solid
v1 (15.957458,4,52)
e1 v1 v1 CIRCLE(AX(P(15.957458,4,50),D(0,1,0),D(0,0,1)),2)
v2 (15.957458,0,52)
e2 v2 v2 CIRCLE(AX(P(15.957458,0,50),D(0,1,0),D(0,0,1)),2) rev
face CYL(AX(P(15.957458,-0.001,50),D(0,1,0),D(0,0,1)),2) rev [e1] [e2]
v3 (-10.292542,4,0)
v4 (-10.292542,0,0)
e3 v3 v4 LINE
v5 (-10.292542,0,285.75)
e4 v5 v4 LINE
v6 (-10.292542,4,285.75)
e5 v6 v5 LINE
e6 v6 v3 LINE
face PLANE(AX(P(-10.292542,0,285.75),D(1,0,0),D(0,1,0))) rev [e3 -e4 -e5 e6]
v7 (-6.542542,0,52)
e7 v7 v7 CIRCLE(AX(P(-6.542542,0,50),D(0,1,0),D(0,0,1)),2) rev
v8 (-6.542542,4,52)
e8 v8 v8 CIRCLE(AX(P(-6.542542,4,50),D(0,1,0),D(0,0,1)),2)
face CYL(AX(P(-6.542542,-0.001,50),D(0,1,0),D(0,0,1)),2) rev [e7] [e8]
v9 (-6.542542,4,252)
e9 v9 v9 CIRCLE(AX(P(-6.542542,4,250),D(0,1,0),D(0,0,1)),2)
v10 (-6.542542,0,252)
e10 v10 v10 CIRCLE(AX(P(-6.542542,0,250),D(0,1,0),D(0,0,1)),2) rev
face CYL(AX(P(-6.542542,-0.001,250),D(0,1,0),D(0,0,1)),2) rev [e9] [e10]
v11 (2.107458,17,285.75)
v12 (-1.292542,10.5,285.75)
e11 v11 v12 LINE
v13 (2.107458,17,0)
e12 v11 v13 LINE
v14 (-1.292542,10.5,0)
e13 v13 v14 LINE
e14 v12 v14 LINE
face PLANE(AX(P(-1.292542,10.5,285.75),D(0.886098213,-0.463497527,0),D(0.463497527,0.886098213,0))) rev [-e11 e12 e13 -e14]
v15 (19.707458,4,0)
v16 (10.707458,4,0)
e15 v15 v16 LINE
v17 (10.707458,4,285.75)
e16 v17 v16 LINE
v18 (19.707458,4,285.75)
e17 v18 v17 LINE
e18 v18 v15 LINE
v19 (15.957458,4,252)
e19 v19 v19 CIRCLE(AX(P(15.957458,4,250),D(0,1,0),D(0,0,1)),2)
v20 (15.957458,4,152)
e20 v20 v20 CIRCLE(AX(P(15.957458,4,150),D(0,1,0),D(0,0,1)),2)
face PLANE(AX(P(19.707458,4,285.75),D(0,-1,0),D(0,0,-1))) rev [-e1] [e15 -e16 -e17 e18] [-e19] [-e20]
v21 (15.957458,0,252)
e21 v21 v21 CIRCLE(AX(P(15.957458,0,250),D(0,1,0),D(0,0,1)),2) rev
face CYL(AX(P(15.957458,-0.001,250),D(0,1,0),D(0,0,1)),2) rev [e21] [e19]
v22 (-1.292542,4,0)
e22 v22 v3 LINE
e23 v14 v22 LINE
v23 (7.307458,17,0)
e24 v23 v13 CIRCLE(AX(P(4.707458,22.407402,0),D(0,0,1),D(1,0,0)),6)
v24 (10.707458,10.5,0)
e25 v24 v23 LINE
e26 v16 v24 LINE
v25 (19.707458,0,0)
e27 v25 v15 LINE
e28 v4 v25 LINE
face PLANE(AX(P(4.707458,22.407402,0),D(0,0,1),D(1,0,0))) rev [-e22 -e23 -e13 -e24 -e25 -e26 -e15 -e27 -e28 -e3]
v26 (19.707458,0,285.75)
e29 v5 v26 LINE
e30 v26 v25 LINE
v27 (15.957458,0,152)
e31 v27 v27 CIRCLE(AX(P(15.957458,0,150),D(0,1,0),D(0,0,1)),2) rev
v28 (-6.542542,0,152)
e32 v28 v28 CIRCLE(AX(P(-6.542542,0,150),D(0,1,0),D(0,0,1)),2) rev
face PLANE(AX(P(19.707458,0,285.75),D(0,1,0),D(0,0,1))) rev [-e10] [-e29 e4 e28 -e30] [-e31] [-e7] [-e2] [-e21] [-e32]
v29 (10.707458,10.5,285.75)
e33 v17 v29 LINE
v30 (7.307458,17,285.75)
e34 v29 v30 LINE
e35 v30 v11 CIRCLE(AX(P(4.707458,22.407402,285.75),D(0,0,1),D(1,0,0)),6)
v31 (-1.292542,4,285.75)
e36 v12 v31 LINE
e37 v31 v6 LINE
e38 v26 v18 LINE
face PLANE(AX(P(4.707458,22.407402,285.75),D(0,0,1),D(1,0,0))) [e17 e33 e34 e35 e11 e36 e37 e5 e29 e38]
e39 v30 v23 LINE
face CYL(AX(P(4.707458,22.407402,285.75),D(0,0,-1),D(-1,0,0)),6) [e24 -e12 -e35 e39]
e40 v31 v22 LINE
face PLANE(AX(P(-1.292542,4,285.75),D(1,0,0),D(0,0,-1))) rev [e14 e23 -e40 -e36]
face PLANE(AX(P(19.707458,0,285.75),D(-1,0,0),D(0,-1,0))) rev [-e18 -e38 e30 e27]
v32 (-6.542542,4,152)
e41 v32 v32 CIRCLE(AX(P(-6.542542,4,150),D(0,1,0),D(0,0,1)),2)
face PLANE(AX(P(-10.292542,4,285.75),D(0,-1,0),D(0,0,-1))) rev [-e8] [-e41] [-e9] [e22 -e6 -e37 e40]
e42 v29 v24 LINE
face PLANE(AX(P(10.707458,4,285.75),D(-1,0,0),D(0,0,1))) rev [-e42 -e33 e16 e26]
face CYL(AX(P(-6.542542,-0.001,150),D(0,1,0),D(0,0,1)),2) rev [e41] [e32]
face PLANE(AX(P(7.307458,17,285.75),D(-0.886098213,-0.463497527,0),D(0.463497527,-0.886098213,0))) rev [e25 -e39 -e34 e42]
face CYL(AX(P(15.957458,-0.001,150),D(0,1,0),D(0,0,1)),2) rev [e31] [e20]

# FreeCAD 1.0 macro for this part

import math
import FreeCAD as App
import Part
import Sketcher

V = App.Vector
Q = App.Units.Quantity

doc = App.newDocument("Part")
params = doc.addObject("Spreadsheet::Sheet", "Params")
for row, (alias, value) in enumerate([
    ("sketch1_radius", "6 mm"),
    ("sketch1_width", "30 mm"),
    ("sketch1_width2", "9 mm"),
    ("sketch1_height", "4 mm"),
    ("sketch1_height2", "6.5 mm"),
    ("pad1_length", "285.75 mm"),
    ("sketch2_diameter", "4 mm"),
    ("sketch3_diameter", "4 mm"),
    ("sketch4_diameter", "4 mm"),
    ("sketch5_diameter", "4 mm"),
    ("sketch6_diameter", "4 mm"),
    ("sketch7_diameter", "4 mm"),
], start=1):
    params.set(f"A{row}", alias)
    params.set(f"B{row}", "=" + value)
    params.setAlias(f"B{row}", alias)

body = doc.addObject("PartDesign::Body", "Body")

sketch1 = body.newObject("Sketcher::SketchObject", "Sketch")
sketch1.AttachmentSupport = (doc.getObject("XY_Plane"), [""])
sketch1.MapMode = "FlatFace"
sketch1.addGeometry([
    Part.LineSegment(V(-10.3, 0, 0), V(19.7, 0, 0)),
    Part.LineSegment(V(19.7, 0, 0), V(19.7, 4, 0)),
    Part.LineSegment(V(19.7, 4, 0), V(10.7, 4, 0)),
    Part.LineSegment(V(10.7, 4, 0), V(10.7, 10.5, 0)),
    Part.LineSegment(V(10.7, 10.5, 0), V(7.3, 17, 0)),
    Part.ArcOfCircle(Part.Circle(V(4.7, 22.4, 0), V(0, 0, 1), 6), math.radians(-64), math.radians(244)),
    Part.LineSegment(V(2.1, 17, 0), V(-1.3, 10.5, 0)),
    Part.LineSegment(V(-1.3, 10.5, 0), V(-1.3, 4, 0)),
    Part.LineSegment(V(-1.3, 4, 0), V(-10.3, 4, 0)),
    Part.LineSegment(V(-10.3, 4, 0), V(-10.3, 0, 0)),
], False)
sketch1.addConstraint([
    Sketcher.Constraint("Coincident", 0, 2, 1, 1),
    Sketcher.Constraint("Coincident", 1, 2, 2, 1),
    Sketcher.Constraint("Coincident", 2, 2, 3, 1),
    Sketcher.Constraint("Coincident", 3, 2, 4, 1),
    Sketcher.Constraint("Coincident", 4, 2, 5, 1),
    Sketcher.Constraint("Coincident", 5, 2, 6, 1),
    Sketcher.Constraint("Coincident", 6, 2, 7, 1),
    Sketcher.Constraint("Coincident", 7, 2, 8, 1),
    Sketcher.Constraint("Coincident", 8, 2, 9, 1),
    Sketcher.Constraint("Coincident", 9, 2, 0, 1),
    Sketcher.Constraint("Horizontal", 0),
    Sketcher.Constraint("Vertical", 1),
    Sketcher.Constraint("Horizontal", 2),
    Sketcher.Constraint("Vertical", 3),
    Sketcher.Constraint("Vertical", 7),
    Sketcher.Constraint("Horizontal", 8),
    Sketcher.Constraint("Vertical", 9),
    Sketcher.Constraint("PointOnObject", 0, 2, -1),
    Sketcher.Constraint("Horizontal", 4, 2, 5, 2),
    Sketcher.Constraint("Horizontal", 3, 2, 6, 2),
    Sketcher.Constraint("Horizontal", 2, 2, 7, 2),
    Sketcher.Constraint("Equal", 2, 8),
    Sketcher.Constraint("Equal", 4, 6),
    Sketcher.Constraint("Radius", 5, Q("6 mm")),
    Sketcher.Constraint("DistanceX", 0, 1, 0, 2, Q("30 mm")),
    Sketcher.Constraint("DistanceX", 2, 2, 2, 1, Q("9 mm")),
    Sketcher.Constraint("DistanceY", 1, 1, 1, 2, Q("4 mm")),
    Sketcher.Constraint("DistanceY", 3, 1, 3, 2, Q("6.5 mm")),
    Sketcher.Constraint("DistanceY", -1, 1, 4, 2, Q("17 mm")),
    Sketcher.Constraint("DistanceX", 5, 3, 4, 2, Q("2.6 mm")),
    Sketcher.Constraint("DistanceX", -1, 1, 5, 3, Q("4.707458 mm")),
])
sketch1.setExpression("Constraints[23]", "Params.sketch1_radius")
sketch1.setExpression("Constraints[24]", "Params.sketch1_width")
sketch1.setExpression("Constraints[25]", "Params.sketch1_width2")
sketch1.setExpression("Constraints[26]", "Params.sketch1_height")
sketch1.setExpression("Constraints[27]", "Params.sketch1_height2")
pad1 = body.newObject("PartDesign::Pad", "Pad")
pad1.Profile = sketch1
pad1.setExpression("Length", "Params.pad1_length")

sketch2 = body.newObject("Sketcher::SketchObject", "Sketch001")
sketch2.AttachmentSupport = (doc.getObject("XZ_Plane"), [""])
sketch2.MapMode = "FlatFace"
sketch2.AttachmentOffset = App.Placement(V(0, 0, -4), App.Rotation())
sketch2.addGeometry(Part.Circle(V(-6.5, 50, 0), V(0, 0, 1), 2), False)
sketch2.addConstraint([
    Sketcher.Constraint("Diameter", 0, Q("4 mm")),
    Sketcher.Constraint("DistanceY", -1, 1, 0, 3, Q("50 mm")),
    Sketcher.Constraint("DistanceX", 0, 3, -1, 1, Q("6.542542 mm")),
])
sketch2.setExpression("Constraints[0]", "Params.sketch2_diameter")
pocket1 = body.newObject("PartDesign::Pocket", "Pocket")
pocket1.Profile = sketch2
pocket1.Type = "UpToFirst"
pocket1.Reversed = True

sketch3 = body.newObject("Sketcher::SketchObject", "Sketch002")
sketch3.AttachmentSupport = (doc.getObject("XZ_Plane"), [""])
sketch3.MapMode = "FlatFace"
sketch3.AttachmentOffset = App.Placement(V(0, 0, -4), App.Rotation())
sketch3.addGeometry(Part.Circle(V(16, 50, 0), V(0, 0, 1), 2), False)
sketch3.addConstraint([
    Sketcher.Constraint("Diameter", 0, Q("4 mm")),
    Sketcher.Constraint("DistanceY", -1, 1, 0, 3, Q("50 mm")),
    Sketcher.Constraint("DistanceX", -1, 1, 0, 3, Q("15.957458 mm")),
])
sketch3.setExpression("Constraints[0]", "Params.sketch3_diameter")
pocket2 = body.newObject("PartDesign::Pocket", "Pocket001")
pocket2.Profile = sketch3
pocket2.Type = "UpToFirst"
pocket2.Reversed = True

sketch4 = body.newObject("Sketcher::SketchObject", "Sketch003")
sketch4.AttachmentSupport = (doc.getObject("XZ_Plane"), [""])
sketch4.MapMode = "FlatFace"
sketch4.AttachmentOffset = App.Placement(V(0, 0, -4), App.Rotation())
sketch4.addGeometry(Part.Circle(V(16, 150, 0), V(0, 0, 1), 2), False)
sketch4.addConstraint([
    Sketcher.Constraint("Diameter", 0, Q("4 mm")),
    Sketcher.Constraint("DistanceY", -1, 1, 0, 3, Q("150 mm")),
    Sketcher.Constraint("DistanceX", -1, 1, 0, 3, Q("15.957458 mm")),
])
sketch4.setExpression("Constraints[0]", "Params.sketch4_diameter")
pocket3 = body.newObject("PartDesign::Pocket", "Pocket002")
pocket3.Profile = sketch4
pocket3.Type = "UpToFirst"
pocket3.Reversed = True

sketch5 = body.newObject("Sketcher::SketchObject", "Sketch004")
sketch5.AttachmentSupport = (doc.getObject("XZ_Plane"), [""])
sketch5.MapMode = "FlatFace"
sketch5.AttachmentOffset = App.Placement(V(0, 0, -4), App.Rotation())
sketch5.addGeometry(Part.Circle(V(-6.5, 150, 0), V(0, 0, 1), 2), False)
sketch5.addConstraint([
    Sketcher.Constraint("Diameter", 0, Q("4 mm")),
    Sketcher.Constraint("DistanceY", -1, 1, 0, 3, Q("150 mm")),
    Sketcher.Constraint("DistanceX", 0, 3, -1, 1, Q("6.542542 mm")),
])
sketch5.setExpression("Constraints[0]", "Params.sketch5_diameter")
pocket4 = body.newObject("PartDesign::Pocket", "Pocket003")
pocket4.Profile = sketch5
pocket4.Type = "UpToFirst"
pocket4.Reversed = True

sketch6 = body.newObject("Sketcher::SketchObject", "Sketch005")
sketch6.AttachmentSupport = (doc.getObject("XZ_Plane"), [""])
sketch6.MapMode = "FlatFace"
sketch6.AttachmentOffset = App.Placement(V(0, 0, -4), App.Rotation())
sketch6.addGeometry(Part.Circle(V(16, 250, 0), V(0, 0, 1), 2), False)
sketch6.addConstraint([
    Sketcher.Constraint("Diameter", 0, Q("4 mm")),
    Sketcher.Constraint("DistanceY", -1, 1, 0, 3, Q("250 mm")),
    Sketcher.Constraint("DistanceX", -1, 1, 0, 3, Q("15.957458 mm")),
])
sketch6.setExpression("Constraints[0]", "Params.sketch6_diameter")
pocket5 = body.newObject("PartDesign::Pocket", "Pocket004")
pocket5.Profile = sketch6
pocket5.Type = "UpToFirst"
pocket5.Reversed = True

sketch7 = body.newObject("Sketcher::SketchObject", "Sketch006")
sketch7.AttachmentSupport = (doc.getObject("XZ_Plane"), [""])
sketch7.MapMode = "FlatFace"
sketch7.AttachmentOffset = App.Placement(V(0, 0, -4), App.Rotation())
sketch7.addGeometry(Part.Circle(V(-6.5, 250, 0), V(0, 0, 1), 2), False)
sketch7.addConstraint([
    Sketcher.Constraint("Diameter", 0, Q("4 mm")),
    Sketcher.Constraint("DistanceY", -1, 1, 0, 3, Q("250 mm")),
    Sketcher.Constraint("DistanceX", 0, 3, -1, 1, Q("6.542542 mm")),
])
sketch7.setExpression("Constraints[0]", "Params.sketch7_diameter")
pocket6 = body.newObject("PartDesign::Pocket", "Pocket005")
pocket6.Profile = sketch7
pocket6.Type = "UpToFirst"
pocket6.Reversed = True

doc.recompute()
